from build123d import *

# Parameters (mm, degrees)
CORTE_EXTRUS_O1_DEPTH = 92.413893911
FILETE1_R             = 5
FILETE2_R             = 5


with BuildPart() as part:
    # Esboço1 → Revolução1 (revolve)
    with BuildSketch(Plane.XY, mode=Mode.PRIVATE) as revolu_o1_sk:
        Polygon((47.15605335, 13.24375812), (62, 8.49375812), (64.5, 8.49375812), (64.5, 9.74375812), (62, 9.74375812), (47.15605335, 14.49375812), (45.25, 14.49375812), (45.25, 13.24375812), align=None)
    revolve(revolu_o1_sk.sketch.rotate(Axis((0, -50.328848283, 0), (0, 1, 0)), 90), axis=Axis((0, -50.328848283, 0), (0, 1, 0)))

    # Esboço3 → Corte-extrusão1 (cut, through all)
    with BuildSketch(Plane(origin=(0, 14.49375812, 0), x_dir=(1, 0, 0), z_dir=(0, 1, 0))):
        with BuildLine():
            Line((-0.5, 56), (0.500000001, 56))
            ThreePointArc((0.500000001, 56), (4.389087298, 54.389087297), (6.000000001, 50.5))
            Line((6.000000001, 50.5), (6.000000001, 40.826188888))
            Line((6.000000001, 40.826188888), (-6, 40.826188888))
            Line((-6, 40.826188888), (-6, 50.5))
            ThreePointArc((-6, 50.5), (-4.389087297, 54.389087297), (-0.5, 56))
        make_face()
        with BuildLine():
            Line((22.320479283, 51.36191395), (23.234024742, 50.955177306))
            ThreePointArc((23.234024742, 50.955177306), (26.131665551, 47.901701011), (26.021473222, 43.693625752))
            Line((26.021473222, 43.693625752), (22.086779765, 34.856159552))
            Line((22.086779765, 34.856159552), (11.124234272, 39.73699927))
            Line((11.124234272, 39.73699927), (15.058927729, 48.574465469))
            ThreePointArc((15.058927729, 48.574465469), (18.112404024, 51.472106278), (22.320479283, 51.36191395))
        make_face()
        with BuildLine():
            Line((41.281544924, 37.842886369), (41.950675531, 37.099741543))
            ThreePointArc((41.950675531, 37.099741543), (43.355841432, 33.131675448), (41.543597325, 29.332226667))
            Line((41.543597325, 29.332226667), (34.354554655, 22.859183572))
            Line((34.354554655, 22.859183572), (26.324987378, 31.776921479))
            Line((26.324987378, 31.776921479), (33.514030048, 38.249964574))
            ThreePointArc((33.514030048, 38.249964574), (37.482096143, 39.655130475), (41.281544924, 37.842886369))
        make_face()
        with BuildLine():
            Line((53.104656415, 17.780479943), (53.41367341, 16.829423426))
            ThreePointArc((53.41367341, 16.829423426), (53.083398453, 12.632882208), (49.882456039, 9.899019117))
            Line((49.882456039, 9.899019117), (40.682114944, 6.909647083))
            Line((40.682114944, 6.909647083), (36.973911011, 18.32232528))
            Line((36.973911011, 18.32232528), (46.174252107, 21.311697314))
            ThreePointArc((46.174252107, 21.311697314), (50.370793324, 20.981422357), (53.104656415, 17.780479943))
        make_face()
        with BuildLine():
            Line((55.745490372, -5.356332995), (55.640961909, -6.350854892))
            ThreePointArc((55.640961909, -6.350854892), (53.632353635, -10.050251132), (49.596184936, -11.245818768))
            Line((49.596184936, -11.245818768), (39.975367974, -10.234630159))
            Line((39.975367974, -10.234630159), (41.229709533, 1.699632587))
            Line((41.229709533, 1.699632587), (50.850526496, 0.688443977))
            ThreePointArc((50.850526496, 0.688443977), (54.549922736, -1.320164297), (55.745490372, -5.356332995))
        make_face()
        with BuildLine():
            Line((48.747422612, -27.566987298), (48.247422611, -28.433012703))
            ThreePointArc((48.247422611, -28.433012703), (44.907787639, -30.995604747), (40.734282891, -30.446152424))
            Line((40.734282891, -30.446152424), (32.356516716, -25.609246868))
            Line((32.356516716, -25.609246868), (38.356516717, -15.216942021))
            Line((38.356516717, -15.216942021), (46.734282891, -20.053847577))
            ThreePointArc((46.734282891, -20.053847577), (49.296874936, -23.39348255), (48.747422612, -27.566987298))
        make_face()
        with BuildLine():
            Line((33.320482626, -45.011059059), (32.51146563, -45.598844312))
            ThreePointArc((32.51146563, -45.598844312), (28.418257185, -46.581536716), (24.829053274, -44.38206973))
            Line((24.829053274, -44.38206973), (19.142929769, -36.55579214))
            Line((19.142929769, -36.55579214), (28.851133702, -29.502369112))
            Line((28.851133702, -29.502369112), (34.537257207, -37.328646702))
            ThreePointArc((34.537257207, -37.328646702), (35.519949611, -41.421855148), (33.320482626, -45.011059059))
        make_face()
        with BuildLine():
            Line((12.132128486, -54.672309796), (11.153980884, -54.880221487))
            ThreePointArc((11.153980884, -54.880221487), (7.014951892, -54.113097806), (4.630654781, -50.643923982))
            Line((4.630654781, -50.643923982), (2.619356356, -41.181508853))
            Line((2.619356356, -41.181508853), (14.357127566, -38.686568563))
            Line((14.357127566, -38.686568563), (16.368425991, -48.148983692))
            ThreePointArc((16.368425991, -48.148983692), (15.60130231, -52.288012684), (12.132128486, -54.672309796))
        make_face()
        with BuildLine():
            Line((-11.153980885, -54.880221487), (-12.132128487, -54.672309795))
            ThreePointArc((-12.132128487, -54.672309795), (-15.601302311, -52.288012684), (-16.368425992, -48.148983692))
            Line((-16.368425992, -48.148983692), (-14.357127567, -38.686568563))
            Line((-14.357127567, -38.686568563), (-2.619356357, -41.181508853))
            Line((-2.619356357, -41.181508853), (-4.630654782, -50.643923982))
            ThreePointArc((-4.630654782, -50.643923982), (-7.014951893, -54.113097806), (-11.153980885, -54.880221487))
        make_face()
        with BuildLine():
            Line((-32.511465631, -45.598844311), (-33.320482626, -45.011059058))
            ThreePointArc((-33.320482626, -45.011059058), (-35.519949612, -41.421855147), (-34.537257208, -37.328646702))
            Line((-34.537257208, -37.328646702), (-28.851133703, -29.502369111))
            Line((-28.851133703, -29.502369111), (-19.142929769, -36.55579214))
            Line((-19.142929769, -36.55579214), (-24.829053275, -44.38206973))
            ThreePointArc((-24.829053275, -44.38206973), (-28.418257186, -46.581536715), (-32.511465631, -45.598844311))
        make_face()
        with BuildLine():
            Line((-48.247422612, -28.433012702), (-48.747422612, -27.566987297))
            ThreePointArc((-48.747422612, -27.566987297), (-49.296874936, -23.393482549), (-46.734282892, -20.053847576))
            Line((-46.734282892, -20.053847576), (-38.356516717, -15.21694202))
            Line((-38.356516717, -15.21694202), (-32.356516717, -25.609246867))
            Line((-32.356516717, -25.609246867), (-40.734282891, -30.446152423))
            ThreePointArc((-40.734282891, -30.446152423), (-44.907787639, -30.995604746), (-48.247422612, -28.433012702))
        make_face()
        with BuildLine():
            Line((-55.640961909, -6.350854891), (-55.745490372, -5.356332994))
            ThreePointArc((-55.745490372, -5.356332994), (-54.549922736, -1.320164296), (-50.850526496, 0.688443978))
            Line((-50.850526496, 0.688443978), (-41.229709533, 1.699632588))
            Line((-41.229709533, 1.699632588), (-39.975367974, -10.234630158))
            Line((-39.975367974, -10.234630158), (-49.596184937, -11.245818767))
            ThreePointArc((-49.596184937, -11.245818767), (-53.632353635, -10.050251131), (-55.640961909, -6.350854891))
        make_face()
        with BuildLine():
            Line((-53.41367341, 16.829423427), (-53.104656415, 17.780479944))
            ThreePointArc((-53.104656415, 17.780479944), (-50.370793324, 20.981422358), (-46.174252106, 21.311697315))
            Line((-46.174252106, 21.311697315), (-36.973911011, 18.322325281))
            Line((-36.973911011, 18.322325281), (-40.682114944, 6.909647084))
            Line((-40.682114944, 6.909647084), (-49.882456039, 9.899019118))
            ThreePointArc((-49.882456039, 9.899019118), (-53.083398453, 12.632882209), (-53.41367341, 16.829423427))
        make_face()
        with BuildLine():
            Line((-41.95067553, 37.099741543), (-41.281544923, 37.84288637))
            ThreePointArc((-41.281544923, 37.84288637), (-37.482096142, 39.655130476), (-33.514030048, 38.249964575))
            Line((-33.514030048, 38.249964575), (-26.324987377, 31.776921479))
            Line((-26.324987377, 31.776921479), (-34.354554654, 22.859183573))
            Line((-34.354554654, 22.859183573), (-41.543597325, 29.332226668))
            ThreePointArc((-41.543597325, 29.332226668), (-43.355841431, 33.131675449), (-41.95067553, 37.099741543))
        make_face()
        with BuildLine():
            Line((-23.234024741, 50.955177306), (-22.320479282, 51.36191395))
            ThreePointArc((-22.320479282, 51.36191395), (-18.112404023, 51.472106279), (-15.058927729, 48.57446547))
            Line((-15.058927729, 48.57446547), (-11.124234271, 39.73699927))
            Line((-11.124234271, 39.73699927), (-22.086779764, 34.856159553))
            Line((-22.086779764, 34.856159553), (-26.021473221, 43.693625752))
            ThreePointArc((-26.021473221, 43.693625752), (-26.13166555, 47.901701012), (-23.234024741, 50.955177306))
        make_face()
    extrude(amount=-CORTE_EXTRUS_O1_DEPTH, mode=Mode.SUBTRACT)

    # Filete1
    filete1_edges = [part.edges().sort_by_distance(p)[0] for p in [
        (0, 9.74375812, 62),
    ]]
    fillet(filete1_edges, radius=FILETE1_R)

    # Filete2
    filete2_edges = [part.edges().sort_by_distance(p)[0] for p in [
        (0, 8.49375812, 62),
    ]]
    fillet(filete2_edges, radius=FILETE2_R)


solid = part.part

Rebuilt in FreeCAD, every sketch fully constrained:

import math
import FreeCAD as App
import Part
import Sketcher

V = App.Vector
Q = App.Units.Quantity


def edges_at(feature, points):
    """Names of the edges that pass closest to the given points."""
    edges = feature.Shape.Edges
    near = lambda p: min(range(len(edges)), key=lambda i: edges[i].distToShape(Part.Vertex(*p))[0])
    return sorted({f"Edge{near(p) + 1}" for p in points})

doc = App.newDocument("Part")
body = doc.addObject("PartDesign::Body", "Body")

# Sketch on XY plane
sketch1 = body.newObject("Sketcher::SketchObject", "Sketch")
sketch1.AttachmentSupport = (doc.getObject("XY_Plane"), [""])
sketch1.MapMode = "FlatFace"
sketch1.addGeometry(Part.LineSegment(V(47.2, 13.2, 0), V(62, 8.5, 0)), False)
sketch1.addGeometry(Part.LineSegment(V(62, 8.5, 0), V(64.5, 8.5, 0)), False)
sketch1.addGeometry(Part.LineSegment(V(64.5, 8.5, 0), V(64.5, 9.7, 0)), False)
sketch1.addGeometry(Part.LineSegment(V(64.5, 9.7, 0), V(62, 9.7, 0)), False)
sketch1.addGeometry(Part.LineSegment(V(62, 9.7, 0), V(47.2, 14.5, 0)), False)
sketch1.addGeometry(Part.LineSegment(V(47.2, 14.5, 0), V(45.2, 14.5, 0)), False)
sketch1.addGeometry(Part.LineSegment(V(45.2, 14.5, 0), V(45.2, 13.2, 0)), False)
sketch1.addGeometry(Part.LineSegment(V(45.2, 13.2, 0), V(47.2, 13.2, 0)), False)
sketch1.addConstraint(Sketcher.Constraint("Coincident", 0, 2, 1, 1))
sketch1.addConstraint(Sketcher.Constraint("Coincident", 1, 2, 2, 1))
sketch1.addConstraint(Sketcher.Constraint("Coincident", 2, 2, 3, 1))
sketch1.addConstraint(Sketcher.Constraint("Coincident", 3, 2, 4, 1))
sketch1.addConstraint(Sketcher.Constraint("Coincident", 4, 2, 5, 1))
sketch1.addConstraint(Sketcher.Constraint("Coincident", 5, 2, 6, 1))
sketch1.addConstraint(Sketcher.Constraint("Coincident", 6, 2, 7, 1))
sketch1.addConstraint(Sketcher.Constraint("Coincident", 7, 2, 0, 1))
sketch1.addConstraint(Sketcher.Constraint("Horizontal", 1))
sketch1.addConstraint(Sketcher.Constraint("Vertical", 2))
sketch1.addConstraint(Sketcher.Constraint("Horizontal", 3))
sketch1.addConstraint(Sketcher.Constraint("Horizontal", 5))
sketch1.addConstraint(Sketcher.Constraint("Vertical", 6))
sketch1.addConstraint(Sketcher.Constraint("Horizontal", 7))
sketch1.addConstraint(Sketcher.Constraint("Parallel", 0, 4))
sketch1.addConstraint(Sketcher.Constraint("Vertical", 0, 2, 3, 2))
sketch1.addConstraint(Sketcher.Constraint("Vertical", 4, 2, 7, 2))
sketch1.addConstraint(Sketcher.Constraint("DistanceX", 1, 1, 1, 2, Q("2.5 mm")))
sketch1.addConstraint(Sketcher.Constraint("DistanceX", -1, 1, 0, 2, Q("62 mm")))
sketch1.addConstraint(Sketcher.Constraint("DistanceY", 0, 2, 4, 2, Q("6 mm")))
sketch1.addConstraint(Sketcher.Constraint("DistanceY", 2, 1, 2, 2, Q("1.25 mm")))
sketch1.addConstraint(Sketcher.Constraint("DistanceX", -1, 1, 5, 2, Q("45.25 mm")))
sketch1.addConstraint(Sketcher.Constraint("DistanceX", 5, 2, 5, 1, Q("1.906053 mm")))
sketch1.addConstraint(Sketcher.Constraint("DistanceY", -1, 1, 0, 2, Q("8.493758 mm")))
revolution = body.newObject("PartDesign::Revolution", "Revolution")
revolution.Profile = sketch1
revolution.ReferenceAxis = (sketch1, ["V_Axis"])
revolution.Angle = 360

# Sketch on XZ plane
sketch2 = body.newObject("Sketcher::SketchObject", "Sketch001")
sketch2.AttachmentSupport = (doc.getObject("XZ_Plane"), [""])
sketch2.MapMode = "FlatFace"
sketch2.AttachmentOffset = App.Placement(V(0, 0, -14.493758), App.Rotation())
sketch2.addGeometry(Part.LineSegment(V(0.5, -56, 0), V(-0.5, -56, 0)), False)
sketch2.addGeometry(Part.ArcOfCircle(Part.Circle(V(-0.5, -50.5, 0), V(0, 0, 1), 5.5), math.radians(180), math.radians(270)), False)
sketch2.addGeometry(Part.LineSegment(V(-6, -50.5, 0), V(-6, -40.8, 0)), False)
sketch2.addGeometry(Part.LineSegment(V(-6, -40.8, 0), V(6, -40.8, 0)), False)
sketch2.addGeometry(Part.LineSegment(V(6, -40.8, 0), V(6, -50.5, 0)), False)
sketch2.addGeometry(Part.ArcOfCircle(Part.Circle(V(0.5, -50.5, 0), V(0, 0, 1), 5.5), math.radians(-90), math.radians(0)), False)
sketch2.addGeometry(Part.LineSegment(V(23.2, -51, 0), V(22.3, -51.4, 0)), False)
sketch2.addGeometry(Part.ArcOfCircle(Part.Circle(V(20.1, -46.3, 0), V(0, 0, 1), 5.5), math.radians(-156), math.radians(-66)), False)
sketch2.addGeometry(Part.LineSegment(V(15.1, -48.6, 0), V(11.1, -39.7, 0)), False)
sketch2.addGeometry(Part.LineSegment(V(11.1, -39.7, 0), V(22.1, -34.9, 0)), False)
sketch2.addGeometry(Part.LineSegment(V(22.1, -34.9, 0), V(26, -43.7, 0)), False)
sketch2.addGeometry(Part.ArcOfCircle(Part.Circle(V(21, -45.9, 0), V(0, 0, 1), 5.5), math.radians(-66), math.radians(24)), False)
sketch2.addGeometry(Part.LineSegment(V(42, -37.1, 0), V(41.3, -37.8, 0)), False)
sketch2.addGeometry(Part.ArcOfCircle(Part.Circle(V(37.2, -34.2, 0), V(0, 0, 1), 5.5), math.radians(-132), math.radians(-42)), False)
sketch2.addGeometry(Part.LineSegment(V(33.5, -38.2, 0), V(26.3, -31.8, 0)), False)
sketch2.addGeometry(Part.LineSegment(V(26.3, -31.8, 0), V(34.4, -22.9, 0)), False)
sketch2.addGeometry(Part.LineSegment(V(34.4, -22.9, 0), V(41.5, -29.3, 0)), False)
sketch2.addGeometry(Part.ArcOfCircle(Part.Circle(V(37.9, -33.4, 0), V(0, 0, 1), 5.5), math.radians(-42), math.radians(48)), False)
sketch2.addGeometry(Part.LineSegment(V(53.4, -16.8, 0), V(53.1, -17.8, 0)), False)
sketch2.addGeometry(Part.ArcOfCircle(Part.Circle(V(47.9, -16.1, 0), V(0, 0, 1), 5.5), math.radians(-108), math.radians(-18)), False)
sketch2.addGeometry(Part.LineSegment(V(46.2, -21.3, 0), V(37, -18.3, 0)), False)
sketch2.addGeometry(Part.LineSegment(V(37, -18.3, 0), V(40.7, -6.9, 0)), False)
sketch2.addGeometry(Part.LineSegment(V(40.7, -6.9, 0), V(49.9, -9.9, 0)), False)
sketch2.addGeometry(Part.ArcOfCircle(Part.Circle(V(48.2, -15.1, 0), V(0, 0, 1), 5.5), math.radians(-18), math.radians(72)), False)
sketch2.addGeometry(Part.LineSegment(V(55.6, 6.4, 0), V(55.7, 5.4, 0)), False)
sketch2.addGeometry(Part.ArcOfCircle(Part.Circle(V(50.3, 4.8, 0), V(0, 0, 1), 5.5), math.radians(-84), math.radians(6)), False)
sketch2.addGeometry(Part.LineSegment(V(50.9, -0.7, 0), V(41.2, -1.7, 0)), False)
sketch2.addGeometry(Part.LineSegment(V(41.2, -1.7, 0), V(40, 10.2, 0)), False)
sketch2.addGeometry(Part.LineSegment(V(40, 10.2, 0), V(49.6, 11.2, 0)), False)
sketch2.addGeometry(Part.ArcOfCircle(Part.Circle(V(50.2, 5.8, 0), V(0, 0, 1), 5.5), math.radians(6), math.radians(96)), False)
sketch2.addGeometry(Part.LineSegment(V(48.2, 28.4, 0), V(48.7, 27.6, 0)), False)
sketch2.addGeometry(Part.ArcOfCircle(Part.Circle(V(44, 24.8, 0), V(0, 0, 1), 5.5), math.radians(-60), math.radians(30)), False)
sketch2.addGeometry(Part.LineSegment(V(46.7, 20.1, 0), V(38.4, 15.2, 0)), False)
sketch2.addGeometry(Part.LineSegment(V(38.4, 15.2, 0), V(32.4, 25.6, 0)), False)
sketch2.addGeometry(Part.LineSegment(V(32.4, 25.6, 0), V(40.7, 30.4, 0)), False)
sketch2.addGeometry(Part.ArcOfCircle(Part.Circle(V(43.5, 25.7, 0), V(0, 0, 1), 5.5), math.radians(30), math.radians(120)), False)
sketch2.addGeometry(Part.LineSegment(V(32.5, 45.6, 0), V(33.3, 45, 0)), False)
sketch2.addGeometry(Part.ArcOfCircle(Part.Circle(V(30.1, 40.6, 0), V(0, 0, 1), 5.5), math.radians(-36), math.radians(54)), False)
sketch2.addGeometry(Part.LineSegment(V(34.5, 37.3, 0), V(28.9, 29.5, 0)), False)
sketch2.addGeometry(Part.LineSegment(V(28.9, 29.5, 0), V(19.1, 36.6, 0)), False)
sketch2.addGeometry(Part.LineSegment(V(19.1, 36.6, 0), V(24.8, 44.4, 0)), False)
sketch2.addGeometry(Part.ArcOfCircle(Part.Circle(V(29.3, 41.1, 0), V(0, 0, 1), 5.5), math.radians(54), math.radians(144)), False)
sketch2.addGeometry(Part.LineSegment(V(11.2, 54.9, 0), V(12.1, 54.7, 0)), False)
sketch2.addGeometry(Part.ArcOfCircle(Part.Circle(V(11, 49.3, 0), V(0, 0, 1), 5.5), math.radians(-12), math.radians(78)), False)
sketch2.addGeometry(Part.LineSegment(V(16.4, 48.1, 0), V(14.4, 38.7, 0)), False)
sketch2.addGeometry(Part.LineSegment(V(14.4, 38.7, 0), V(2.6, 41.2, 0)), False)
sketch2.addGeometry(Part.LineSegment(V(2.6, 41.2, 0), V(4.6, 50.6, 0)), False)
sketch2.addGeometry(Part.ArcOfCircle(Part.Circle(V(10, 49.5, 0), V(0, 0, 1), 5.5), math.radians(78), math.radians(168)), False)
sketch2.addGeometry(Part.LineSegment(V(-12.1, 54.7, 0), V(-11.2, 54.9, 0)), False)
sketch2.addGeometry(Part.ArcOfCircle(Part.Circle(V(-10, 49.5, 0), V(0, 0, 1), 5.5), math.radians(12), math.radians(102)), False)
sketch2.addGeometry(Part.LineSegment(V(-4.6, 50.6, 0), V(-2.6, 41.2, 0)), False)
sketch2.addGeometry(Part.LineSegment(V(-2.6, 41.2, 0), V(-14.4, 38.7, 0)), False)
sketch2.addGeometry(Part.LineSegment(V(-14.4, 38.7, 0), V(-16.4, 48.1, 0)), False)
sketch2.addGeometry(Part.ArcOfCircle(Part.Circle(V(-11, 49.3, 0), V(0, 0, 1), 5.5), math.radians(102), math.radians(192)), False)
sketch2.addGeometry(Part.LineSegment(V(-33.3, 45, 0), V(-32.5, 45.6, 0)), False)
sketch2.addGeometry(Part.ArcOfCircle(Part.Circle(V(-29.3, 41.1, 0), V(0, 0, 1), 5.5), math.radians(36), math.radians(126)), False)
sketch2.addGeometry(Part.LineSegment(V(-24.8, 44.4, 0), V(-19.1, 36.6, 0)), False)
sketch2.addGeometry(Part.LineSegment(V(-19.1, 36.6, 0), V(-28.9, 29.5, 0)), False)
sketch2.addGeometry(Part.LineSegment(V(-28.9, 29.5, 0), V(-34.5, 37.3, 0)), False)
sketch2.addGeometry(Part.ArcOfCircle(Part.Circle(V(-30.1, 40.6, 0), V(0, 0, 1), 5.5), math.radians(126), math.radians(216)), False)
sketch2.addGeometry(Part.LineSegment(V(-48.7, 27.6, 0), V(-48.2, 28.4, 0)), False)
sketch2.addGeometry(Part.ArcOfCircle(Part.Circle(V(-43.5, 25.7, 0), V(0, 0, 1), 5.5), math.radians(60), math.radians(150)), False)
sketch2.addGeometry(Part.LineSegment(V(-40.7, 30.4, 0), V(-32.4, 25.6, 0)), False)
sketch2.addGeometry(Part.LineSegment(V(-32.4, 25.6, 0), V(-38.4, 15.2, 0)), False)
sketch2.addGeometry(Part.LineSegment(V(-38.4, 15.2, 0), V(-46.7, 20.1, 0)), False)
sketch2.addGeometry(Part.ArcOfCircle(Part.Circle(V(-44, 24.8, 0), V(0, 0, 1), 5.5), math.radians(150), math.radians(240)), False)
sketch2.addGeometry(Part.LineSegment(V(-55.7, 5.4, 0), V(-55.6, 6.4, 0)), False)
sketch2.addGeometry(Part.ArcOfCircle(Part.Circle(V(-50.2, 5.8, 0), V(0, 0, 1), 5.5), math.radians(84), math.radians(174)), False)
sketch2.addGeometry(Part.LineSegment(V(-49.6, 11.2, 0), V(-40, 10.2, 0)), False)
sketch2.addGeometry(Part.LineSegment(V(-40, 10.2, 0), V(-41.2, -1.7, 0)), False)
sketch2.addGeometry(Part.LineSegment(V(-41.2, -1.7, 0), V(-50.9, -0.7, 0)), False)
sketch2.addGeometry(Part.ArcOfCircle(Part.Circle(V(-50.3, 4.8, 0), V(0, 0, 1), 5.5), math.radians(174), math.radians(264)), False)
sketch2.addGeometry(Part.LineSegment(V(-53.1, -17.8, 0), V(-53.4, -16.8, 0)), False)
sketch2.addGeometry(Part.ArcOfCircle(Part.Circle(V(-48.2, -15.1, 0), V(0, 0, 1), 5.5), math.radians(108), math.radians(198)), False)
sketch2.addGeometry(Part.LineSegment(V(-49.9, -9.9, 0), V(-40.7, -6.9, 0)), False)
sketch2.addGeometry(Part.LineSegment(V(-40.7, -6.9, 0), V(-37, -18.3, 0)), False)
sketch2.addGeometry(Part.LineSegment(V(-37, -18.3, 0), V(-46.2, -21.3, 0)), False)
sketch2.addGeometry(Part.ArcOfCircle(Part.Circle(V(-47.9, -16.1, 0), V(0, 0, 1), 5.5), math.radians(-162), math.radians(-72)), False)
sketch2.addGeometry(Part.LineSegment(V(-41.3, -37.8, 0), V(-42, -37.1, 0)), False)
sketch2.addGeometry(Part.ArcOfCircle(Part.Circle(V(-37.9, -33.4, 0), V(0, 0, 1), 5.5), math.radians(132), math.radians(222)), False)
sketch2.addGeometry(Part.LineSegment(V(-41.5, -29.3, 0), V(-34.4, -22.9, 0)), False)
sketch2.addGeometry(Part.LineSegment(V(-34.4, -22.9, 0), V(-26.3, -31.8, 0)), False)
sketch2.addGeometry(Part.LineSegment(V(-26.3, -31.8, 0), V(-33.5, -38.2, 0)), False)
sketch2.addGeometry(Part.ArcOfCircle(Part.Circle(V(-37.2, -34.2, 0), V(0, 0, 1), 5.5), math.radians(-138), math.radians(-48)), False)
sketch2.addGeometry(Part.LineSegment(V(-22.3, -51.4, 0), V(-23.2, -51, 0)), False)
sketch2.addGeometry(Part.ArcOfCircle(Part.Circle(V(-21, -45.9, 0), V(0, 0, 1), 5.5), math.radians(156), math.radians(246)), False)
sketch2.addGeometry(Part.LineSegment(V(-26, -43.7, 0), V(-22.1, -34.9, 0)), False)
sketch2.addGeometry(Part.LineSegment(V(-22.1, -34.9, 0), V(-11.1, -39.7, 0)), False)
sketch2.addGeometry(Part.LineSegment(V(-11.1, -39.7, 0), V(-15.1, -48.6, 0)), False)
sketch2.addGeometry(Part.ArcOfCircle(Part.Circle(V(-20.1, -46.3, 0), V(0, 0, 1), 5.5), math.radians(-114), math.radians(-24)), False)
sketch2.addConstraint(Sketcher.Constraint("Tangent", 0, 2, 1, 2))
sketch2.addConstraint(Sketcher.Constraint("Tangent", 1, 1, 2, 1))
sketch2.addConstraint(Sketcher.Constraint("Coincident", 2, 2, 3, 1))
sketch2.addConstraint(Sketcher.Constraint("Coincident", 3, 2, 4, 1))
sketch2.addConstraint(Sketcher.Constraint("Tangent", 4, 2, 5, 2))
sketch2.addConstraint(Sketcher.Constraint("Tangent", 5, 1, 0, 1))
sketch2.addConstraint(Sketcher.Constraint("Tangent", 6, 2, 7, 2))
sketch2.addConstraint(Sketcher.Constraint("Tangent", 7, 1, 8, 1))
sketch2.addConstraint(Sketcher.Constraint("Coincident", 8, 2, 9, 1))
sketch2.addConstraint(Sketcher.Constraint("Coincident", 9, 2, 10, 1))
sketch2.addConstraint(Sketcher.Constraint("Tangent", 10, 2, 11, 2))
sketch2.addConstraint(Sketcher.Constraint("Tangent", 11, 1, 6, 1))
sketch2.addConstraint(Sketcher.Constraint("Tangent", 12, 2, 13, 2))
sketch2.addConstraint(Sketcher.Constraint("Tangent", 13, 1, 14, 1))
sketch2.addConstraint(Sketcher.Constraint("Coincident", 14, 2, 15, 1))
sketch2.addConstraint(Sketcher.Constraint("Coincident", 15, 2, 16, 1))
sketch2.addConstraint(Sketcher.Constraint("Tangent", 16, 2, 17, 2))
sketch2.addConstraint(Sketcher.Constraint("Tangent", 17, 1, 12, 1))
sketch2.addConstraint(Sketcher.Constraint("Tangent", 18, 2, 19, 2))
sketch2.addConstraint(Sketcher.Constraint("Tangent", 19, 1, 20, 1))
sketch2.addConstraint(Sketcher.Constraint("Coincident", 20, 2, 21, 1))
sketch2.addConstraint(Sketcher.Constraint("Coincident", 21, 2, 22, 1))
sketch2.addConstraint(Sketcher.Constraint("Tangent", 22, 2, 23, 2))
sketch2.addConstraint(Sketcher.Constraint("Tangent", 23, 1, 18, 1))
sketch2.addConstraint(Sketcher.Constraint("Tangent", 24, 2, 25, 2))
sketch2.addConstraint(Sketcher.Constraint("Tangent", 25, 1, 26, 1))
sketch2.addConstraint(Sketcher.Constraint("Coincident", 26, 2, 27, 1))
sketch2.addConstraint(Sketcher.Constraint("Coincident", 27, 2, 28, 1))
sketch2.addConstraint(Sketcher.Constraint("Tangent", 28, 2, 29, 2))
sketch2.addConstraint(Sketcher.Constraint("Tangent", 29, 1, 24, 1))
sketch2.addConstraint(Sketcher.Constraint("Tangent", 30, 2, 31, 2))
sketch2.addConstraint(Sketcher.Constraint("Tangent", 31, 1, 32, 1))
sketch2.addConstraint(Sketcher.Constraint("Coincident", 32, 2, 33, 1))
sketch2.addConstraint(Sketcher.Constraint("Coincident", 33, 2, 34, 1))
sketch2.addConstraint(Sketcher.Constraint("Tangent", 34, 2, 35, 2))
sketch2.addConstraint(Sketcher.Constraint("Tangent", 35, 1, 30, 1))
sketch2.addConstraint(Sketcher.Constraint("Tangent", 36, 2, 37, 2))
sketch2.addConstraint(Sketcher.Constraint("Tangent", 37, 1, 38, 1))
sketch2.addConstraint(Sketcher.Constraint("Coincident", 38, 2, 39, 1))
sketch2.addConstraint(Sketcher.Constraint("Coincident", 39, 2, 40, 1))
sketch2.addConstraint(Sketcher.Constraint("Tangent", 40, 2, 41, 2))
sketch2.addConstraint(Sketcher.Constraint("Tangent", 41, 1, 36, 1))
sketch2.addConstraint(Sketcher.Constraint("Tangent", 42, 2, 43, 2))
sketch2.addConstraint(Sketcher.Constraint("Tangent", 43, 1, 44, 1))
sketch2.addConstraint(Sketcher.Constraint("Coincident", 44, 2, 45, 1))
sketch2.addConstraint(Sketcher.Constraint("Coincident", 45, 2, 46, 1))
sketch2.addConstraint(Sketcher.Constraint("Tangent", 46, 2, 47, 2))
sketch2.addConstraint(Sketcher.Constraint("Tangent", 47, 1, 42, 1))
sketch2.addConstraint(Sketcher.Constraint("Tangent", 48, 2, 49, 2))
sketch2.addConstraint(Sketcher.Constraint("Tangent", 49, 1, 50, 1))
sketch2.addConstraint(Sketcher.Constraint("Coincident", 50, 2, 51, 1))
sketch2.addConstraint(Sketcher.Constraint("Coincident", 51, 2, 52, 1))
sketch2.addConstraint(Sketcher.Constraint("Tangent", 52, 2, 53, 2))
sketch2.addConstraint(Sketcher.Constraint("Tangent", 53, 1, 48, 1))
sketch2.addConstraint(Sketcher.Constraint("Tangent", 54, 2, 55, 2))
sketch2.addConstraint(Sketcher.Constraint("Tangent", 55, 1, 56, 1))
sketch2.addConstraint(Sketcher.Constraint("Coincident", 56, 2, 57, 1))
sketch2.addConstraint(Sketcher.Constraint("Coincident", 57, 2, 58, 1))
sketch2.addConstraint(Sketcher.Constraint("Tangent", 58, 2, 59, 2))
sketch2.addConstraint(Sketcher.Constraint("Tangent", 59, 1, 54, 1))
sketch2.addConstraint(Sketcher.Constraint("Tangent", 60, 2, 61, 2))
sketch2.addConstraint(Sketcher.Constraint("Tangent", 61, 1, 62, 1))
sketch2.addConstraint(Sketcher.Constraint("Coincident", 62, 2, 63, 1))
sketch2.addConstraint(Sketcher.Constraint("Coincident", 63, 2, 64, 1))
sketch2.addConstraint(Sketcher.Constraint("Tangent", 64, 2, 65, 2))
sketch2.addConstraint(Sketcher.Constraint("Tangent", 65, 1, 60, 1))
sketch2.addConstraint(Sketcher.Constraint("Tangent", 66, 2, 67, 2))
sketch2.addConstraint(Sketcher.Constraint("Tangent", 67, 1, 68, 1))
sketch2.addConstraint(Sketcher.Constraint("Coincident", 68, 2, 69, 1))
sketch2.addConstraint(Sketcher.Constraint("Coincident", 69, 2, 70, 1))
sketch2.addConstraint(Sketcher.Constraint("Tangent", 70, 2, 71, 2))
sketch2.addConstraint(Sketcher.Constraint("Tangent", 71, 1, 66, 1))
sketch2.addConstraint(Sketcher.Constraint("Tangent", 72, 2, 73, 2))
sketch2.addConstraint(Sketcher.Constraint("Tangent", 73, 1, 74, 1))
sketch2.addConstraint(Sketcher.Constraint("Coincident", 74, 2, 75, 1))
sketch2.addConstraint(Sketcher.Constraint("Coincident", 75, 2, 76, 1))
sketch2.addConstraint(Sketcher.Constraint("Tangent", 76, 2, 77, 2))
sketch2.addConstraint(Sketcher.Constraint("Tangent", 77, 1, 72, 1))
sketch2.addConstraint(Sketcher.Constraint("Tangent", 78, 2, 79, 2))
sketch2.addConstraint(Sketcher.Constraint("Tangent", 79, 1, 80, 1))
sketch2.addConstraint(Sketcher.Constraint("Coincident", 80, 2, 81, 1))
sketch2.addConstraint(Sketcher.Constraint("Coincident", 81, 2, 82, 1))
sketch2.addConstraint(Sketcher.Constraint("Tangent", 82, 2, 83, 2))
sketch2.addConstraint(Sketcher.Constraint("Tangent", 83, 1, 78, 1))
sketch2.addConstraint(Sketcher.Constraint("Tangent", 84, 2, 85, 2))
sketch2.addConstraint(Sketcher.Constraint("Tangent", 85, 1, 86, 1))
sketch2.addConstraint(Sketcher.Constraint("Coincident", 86, 2, 87, 1))
sketch2.addConstraint(Sketcher.Constraint("Coincident", 87, 2, 88, 1))
sketch2.addConstraint(Sketcher.Constraint("Tangent", 88, 2, 89, 2))
sketch2.addConstraint(Sketcher.Constraint("Tangent", 89, 1, 84, 1))
sketch2.addConstraint(Sketcher.Constraint("Horizontal", 0))
sketch2.addConstraint(Sketcher.Constraint("Vertical", 2))
sketch2.addConstraint(Sketcher.Constraint("Horizontal", 3))
sketch2.addConstraint(Sketcher.Constraint("Vertical", 4))
sketch2.addConstraint(Sketcher.Constraint("Equal", 1, 5))
sketch2.addConstraint(Sketcher.Constraint("Equal", 5, 7))
sketch2.addConstraint(Sketcher.Constraint("Equal", 7, 11))
sketch2.addConstraint(Sketcher.Constraint("Equal", 11, 13))
sketch2.addConstraint(Sketcher.Constraint("Equal", 13, 17))
sketch2.addConstraint(Sketcher.Constraint("Equal", 17, 19))
sketch2.addConstraint(Sketcher.Constraint("Equal", 19, 23))
sketch2.addConstraint(Sketcher.Constraint("Equal", 23, 25))
sketch2.addConstraint(Sketcher.Constraint("Equal", 25, 29))
sketch2.addConstraint(Sketcher.Constraint("Equal", 29, 31))
sketch2.addConstraint(Sketcher.Constraint("Equal", 31, 35))
sketch2.addConstraint(Sketcher.Constraint("Equal", 35, 37))
sketch2.addConstraint(Sketcher.Constraint("Equal", 37, 41))
sketch2.addConstraint(Sketcher.Constraint("Equal", 41, 43))
sketch2.addConstraint(Sketcher.Constraint("Equal", 43, 47))
sketch2.addConstraint(Sketcher.Constraint("Equal", 47, 49))
sketch2.addConstraint(Sketcher.Constraint("Equal", 49, 53))
sketch2.addConstraint(Sketcher.Constraint("Equal", 53, 55))
sketch2.addConstraint(Sketcher.Constraint("Equal", 55, 59))
sketch2.addConstraint(Sketcher.Constraint("Equal", 59, 61))
sketch2.addConstraint(Sketcher.Constraint("Equal", 61, 65))
sketch2.addConstraint(Sketcher.Constraint("Equal", 65, 67))
sketch2.addConstraint(Sketcher.Constraint("Equal", 67, 71))
sketch2.addConstraint(Sketcher.Constraint("Equal", 71, 73))
sketch2.addConstraint(Sketcher.Constraint("Equal", 73, 77))
sketch2.addConstraint(Sketcher.Constraint("Equal", 77, 79))
sketch2.addConstraint(Sketcher.Constraint("Equal", 79, 83))
sketch2.addConstraint(Sketcher.Constraint("Equal", 83, 85))
sketch2.addConstraint(Sketcher.Constraint("Equal", 85, 89))
sketch2.addConstraint(Sketcher.Constraint("Symmetric", 47, 3, 49, 3, -2))
sketch2.addConstraint(Sketcher.Constraint("Symmetric", 43, 3, 53, 3, -2))
sketch2.addConstraint(Sketcher.Constraint("Symmetric", 41, 3, 55, 3, -2))
sketch2.addConstraint(Sketcher.Constraint("Symmetric", 37, 3, 59, 3, -2))
sketch2.addConstraint(Sketcher.Constraint("Symmetric", 35, 3, 61, 3, -2))
sketch2.addConstraint(Sketcher.Constraint("Symmetric", 31, 3, 65, 3, -2))
sketch2.addConstraint(Sketcher.Constraint("Symmetric", 29, 3, 67, 3, -2))
sketch2.addConstraint(Sketcher.Constraint("Symmetric", 25, 3, 71, 3, -2))
sketch2.addConstraint(Sketcher.Constraint("Symmetric", 23, 3, 73, 3, -2))
sketch2.addConstraint(Sketcher.Constraint("Symmetric", 19, 3, 77, 3, -2))
sketch2.addConstraint(Sketcher.Constraint("Symmetric", 17, 3, 79, 3, -2))
sketch2.addConstraint(Sketcher.Constraint("Symmetric", 13, 3, 83, 3, -2))
sketch2.addConstraint(Sketcher.Constraint("Symmetric", 11, 3, 85, 3, -2))
sketch2.addConstraint(Sketcher.Constraint("Symmetric", 7, 3, 89, 3, -2))
sketch2.addConstraint(Sketcher.Constraint("Symmetric", 45, 2, 50, 2, -2))
sketch2.addConstraint(Sketcher.Constraint("Symmetric", 44, 2, 51, 2, -2))
sketch2.addConstraint(Sketcher.Constraint("Symmetric", 39, 2, 56, 2, -2))
sketch2.addConstraint(Sketcher.Constraint("Symmetric", 38, 2, 57, 2, -2))
sketch2.addConstraint(Sketcher.Constraint("Symmetric", 33, 2, 62, 2, -2))
sketch2.addConstraint(Sketcher.Constraint("Symmetric", 32, 2, 63, 2, -2))
sketch2.addConstraint(Sketcher.Constraint("Symmetric", 27, 2, 68, 2, -2))
sketch2.addConstraint(Sketcher.Constraint("Symmetric", 26, 2, 69, 2, -2))
sketch2.addConstraint(Sketcher.Constraint("Symmetric", 21, 2, 74, 2, -2))
sketch2.addConstraint(Sketcher.Constraint("Symmetric", 20, 2, 75, 2, -2))
sketch2.addConstraint(Sketcher.Constraint("Symmetric", 15, 2, 80, 2, -2))
sketch2.addConstraint(Sketcher.Constraint("Symmetric", 14, 2, 81, 2, -2))
sketch2.addConstraint(Sketcher.Constraint("Symmetric", 9, 2, 86, 2, -2))
sketch2.addConstraint(Sketcher.Constraint("Symmetric", 8, 2, 87, 2, -2))
sketch2.addConstraint(Sketcher.Constraint("Perpendicular", 6, 8))
sketch2.addConstraint(Sketcher.Constraint("Perpendicular", 8, 9))
sketch2.addConstraint(Sketcher.Constraint("Perpendicular", 9, 10))
sketch2.addConstraint(Sketcher.Constraint("Perpendicular", 12, 14))
sketch2.addConstraint(Sketcher.Constraint("Perpendicular", 14, 15))
sketch2.addConstraint(Sketcher.Constraint("Perpendicular", 15, 16))
sketch2.addConstraint(Sketcher.Constraint("Perpendicular", 18, 20))
sketch2.addConstraint(Sketcher.Constraint("Perpendicular", 20, 21))
sketch2.addConstraint(Sketcher.Constraint("Perpendicular", 21, 22))
sketch2.addConstraint(Sketcher.Constraint("Perpendicular", 24, 26))
sketch2.addConstraint(Sketcher.Constraint("Perpendicular", 26, 27))
sketch2.addConstraint(Sketcher.Constraint("Perpendicular", 27, 28))
sketch2.addConstraint(Sketcher.Constraint("Perpendicular", 30, 32))
sketch2.addConstraint(Sketcher.Constraint("Perpendicular", 32, 33))
sketch2.addConstraint(Sketcher.Constraint("Perpendicular", 33, 34))
sketch2.addConstraint(Sketcher.Constraint("Perpendicular", 36, 38))
sketch2.addConstraint(Sketcher.Constraint("Perpendicular", 38, 39))
sketch2.addConstraint(Sketcher.Constraint("Perpendicular", 39, 40))
sketch2.addConstraint(Sketcher.Constraint("Perpendicular", 42, 44))
sketch2.addConstraint(Sketcher.Constraint("Perpendicular", 44, 45))
sketch2.addConstraint(Sketcher.Constraint("Perpendicular", 45, 46))
sketch2.addConstraint(Sketcher.Constraint("Equal", 6, 12))
sketch2.addConstraint(Sketcher.Constraint("Equal", 10, 14))
sketch2.addConstraint(Sketcher.Constraint("Equal", 12, 18))
sketch2.addConstraint(Sketcher.Constraint("Equal", 16, 20))
sketch2.addConstraint(Sketcher.Constraint("Equal", 18, 24))
sketch2.addConstraint(Sketcher.Constraint("Equal", 22, 26))
sketch2.addConstraint(Sketcher.Constraint("Equal", 24, 30))
sketch2.addConstraint(Sketcher.Constraint("Equal", 28, 32))
sketch2.addConstraint(Sketcher.Constraint("Equal", 30, 36))
sketch2.addConstraint(Sketcher.Constraint("Equal", 34, 38))
sketch2.addConstraint(Sketcher.Constraint("Equal", 36, 42))
sketch2.addConstraint(Sketcher.Constraint("Equal", 40, 44))
sketch2.addConstraint(Sketcher.Constraint("Radius", 1, Q("5.5 mm")))
sketch2.addConstraint(Sketcher.Constraint("DistanceX", 0, 2, 0, 1, Q("1 mm")))
sketch2.addConstraint(Sketcher.Constraint("Angle", 6, Q("-156 deg")))
sketch2.addConstraint(Sketcher.Constraint("Angle", 12, Q("-132 deg")))
sketch2.addConstraint(Sketcher.Constraint("Angle", 18, Q("-108 deg")))
sketch2.addConstraint(Sketcher.Constraint("Angle", 24, Q("-84 deg")))
sketch2.addConstraint(Sketcher.Constraint("Angle", 30, Q("-60 deg")))
sketch2.addConstraint(Sketcher.Constraint("Angle", 36, Q("-36 deg")))
sketch2.addConstraint(Sketcher.Constraint("Angle", 42, Q("-12 deg")))
sketch2.addConstraint(Sketcher.Constraint("Distance", 6, Q("1 mm")))
sketch2.addConstraint(Sketcher.Constraint("DistanceY", 0, 2, -1, 1, Q("56 mm")))
sketch2.addConstraint(Sketcher.Constraint("DistanceX", 1, 1, -1, 1, Q("6 mm")))
sketch2.addConstraint(Sketcher.Constraint("DistanceY", 8, 2, -1, 1, Q("39.736999 mm")))
sketch2.addConstraint(Sketcher.Constraint("DistanceY", 2, 1, 2, 2, Q("9.673811 mm")))
sketch2.addConstraint(Sketcher.Constraint("Distance", 8, Q("9.673811 mm")))
sketch2.addConstraint(Sketcher.Constraint("DistanceX", -1, 1, 13, 3, Q("37.194248 mm")))
sketch2.addConstraint(Sketcher.Constraint("DistanceY", 13, 3, -1, 1, Q("34.162668 mm")))
sketch2.addConstraint(Sketcher.Constraint("DistanceY", 23, 3, -1, 1, Q("15.12983 mm")))
sketch2.addConstraint(Sketcher.Constraint("DistanceX", -1, 1, 25, 3, Q("50.27562 mm")))
sketch2.addConstraint(Sketcher.Constraint("DistanceY", -1, 1, 29, 3, Q("5.775948 mm")))
sketch2.addConstraint(Sketcher.Constraint("DistanceY", -1, 1, 41, 3, Q("41.149251 mm")))
sketch2.addConstraint(Sketcher.Constraint("DistanceY", -1, 1, 47, 3, Q("49.50041 mm")))
sketch2.addConstraint(Sketcher.Constraint("DistanceX", -1, 1, 6, 2, Q("22.320479 mm")))
sketch2.addConstraint(Sketcher.Constraint("DistanceX", -1, 1, 20, 2, Q("36.973911 mm")))
sketch2.addConstraint(Sketcher.Constraint("DistanceX", -1, 1, 39, 2, Q("19.14293 mm")))
sketch2.addConstraint(Sketcher.Constraint("DistanceX", -1, 1, 42, 2, Q("12.132128 mm")))
sketch2.addConstraint(Sketcher.Constraint("DistanceX", -1, 1, 31, 3, Q("43.984283 mm")))
sketch2.addConstraint(Sketcher.Constraint("DistanceY", -1, 1, 31, 3, Q("24.816987 mm")))
pocket1 = body.newObject("PartDesign::Pocket", "Pocket")
pocket1.Profile = sketch2
pocket1.Type = "ThroughAll"
pocket1.Reversed = True
doc.recompute()

fillet = body.newObject("PartDesign::Fillet", "Fillet")
fillet.Base = (pocket1, edges_at(pocket1, [(0, 9.744, 62)]))
fillet.Radius = 5
doc.recompute()

fillet2 = body.newObject("PartDesign::Fillet", "Fillet001")
fillet2.Base = (fillet, edges_at(fillet, [(0, 8.494, 62)]))
fillet2.Radius = 5

doc.recompute()
